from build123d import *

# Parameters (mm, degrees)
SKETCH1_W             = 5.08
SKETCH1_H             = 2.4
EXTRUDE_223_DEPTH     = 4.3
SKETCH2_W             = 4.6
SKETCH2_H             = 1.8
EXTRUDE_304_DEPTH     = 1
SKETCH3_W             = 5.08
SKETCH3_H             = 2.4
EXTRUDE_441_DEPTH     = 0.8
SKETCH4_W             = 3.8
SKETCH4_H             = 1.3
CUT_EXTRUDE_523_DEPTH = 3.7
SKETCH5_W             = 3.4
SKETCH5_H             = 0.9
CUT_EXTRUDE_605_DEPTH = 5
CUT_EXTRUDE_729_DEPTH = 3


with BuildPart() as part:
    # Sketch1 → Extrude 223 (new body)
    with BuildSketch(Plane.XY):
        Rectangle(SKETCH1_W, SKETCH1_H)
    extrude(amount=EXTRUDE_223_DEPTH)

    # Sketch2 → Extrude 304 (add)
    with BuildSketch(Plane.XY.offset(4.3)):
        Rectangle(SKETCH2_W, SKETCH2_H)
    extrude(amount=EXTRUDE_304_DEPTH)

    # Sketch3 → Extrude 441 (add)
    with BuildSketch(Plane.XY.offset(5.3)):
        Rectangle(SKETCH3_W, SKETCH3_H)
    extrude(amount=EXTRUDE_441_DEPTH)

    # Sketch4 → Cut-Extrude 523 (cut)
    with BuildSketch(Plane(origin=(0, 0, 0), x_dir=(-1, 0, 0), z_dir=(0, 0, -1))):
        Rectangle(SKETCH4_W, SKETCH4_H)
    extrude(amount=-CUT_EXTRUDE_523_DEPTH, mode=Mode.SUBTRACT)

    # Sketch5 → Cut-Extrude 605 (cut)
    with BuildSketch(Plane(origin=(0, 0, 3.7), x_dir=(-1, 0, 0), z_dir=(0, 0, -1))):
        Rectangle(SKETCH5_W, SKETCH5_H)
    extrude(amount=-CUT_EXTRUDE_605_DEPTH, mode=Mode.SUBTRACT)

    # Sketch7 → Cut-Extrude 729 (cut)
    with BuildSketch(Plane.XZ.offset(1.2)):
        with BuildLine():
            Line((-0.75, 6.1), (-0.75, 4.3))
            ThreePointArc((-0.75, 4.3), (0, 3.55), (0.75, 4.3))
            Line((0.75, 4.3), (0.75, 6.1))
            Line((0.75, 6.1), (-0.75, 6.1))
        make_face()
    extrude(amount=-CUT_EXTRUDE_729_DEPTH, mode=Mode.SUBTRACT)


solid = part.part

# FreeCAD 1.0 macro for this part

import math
import FreeCAD as App
import Part
import Sketcher
from FreeCAD import Vector
Q = App.Units.Quantity


def add_polygon(sketch, points):
    """Adds a closed chain of lines whose ends are joined by coincident constraints."""
    first, n = sketch.GeometryCount, len(points)
    for a, b in zip(points, points[1:] + points[:1]):
        sketch.addGeometry(Part.LineSegment(App.Vector(*a, 0), App.Vector(*b, 0)), False)
    for i in range(n):
        sketch.addConstraint(Sketcher.Constraint("Coincident", first + i, 2, first + (i + 1) % n, 1))

doc = App.newDocument("Part")
body = doc.addObject("PartDesign::Body", "Body")

# Sketch on XY plane
sketch1 = body.newObject("Sketcher::SketchObject", "Sketch")
sketch1.AttachmentSupport = (doc.getObject("XY_Plane"), [""])
sketch1.MapMode = "FlatFace"
add_polygon(sketch1, [(-2.5, 1.2), (-2.5, -1.2), (2.5, -1.2), (2.5, 1.2)])  # lines 0-3
sketch1.addConstraint(Sketcher.Constraint("Vertical", 0))
sketch1.addConstraint(Sketcher.Constraint("Horizontal", 1))
sketch1.addConstraint(Sketcher.Constraint("Vertical", 2))
sketch1.addConstraint(Sketcher.Constraint("Horizontal", 3))
sketch1.addConstraint(Sketcher.Constraint("Symmetric", 0, 2, 2, 2, -1, 1))
sketch1.addConstraint(Sketcher.Constraint("DistanceY", 0, 2, 0, 1, Q("2.4 mm")))
sketch1.addConstraint(Sketcher.Constraint("DistanceX", 1, 1, 1, 2, Q("5.08 mm")))
pad1 = body.newObject("PartDesign::Pad", "Pad")
pad1.Profile = sketch1
pad1.Length = 4.3

# Sketch on XY plane
sketch2 = body.newObject("Sketcher::SketchObject", "Sketch001")
sketch2.AttachmentSupport = (doc.getObject("XY_Plane"), [""])
sketch2.MapMode = "FlatFace"
sketch2.AttachmentOffset = App.Placement(Vector(0, 0, 4.3), App.Rotation())
add_polygon(sketch2, [(-2.3, 0.9), (-2.3, -0.9), (2.3, -0.9), (2.3, 0.9)])  # lines 0-3
sketch2.addConstraint(Sketcher.Constraint("Vertical", 0))
sketch2.addConstraint(Sketcher.Constraint("Horizontal", 1))
sketch2.addConstraint(Sketcher.Constraint("Vertical", 2))
sketch2.addConstraint(Sketcher.Constraint("Horizontal", 3))
sketch2.addConstraint(Sketcher.Constraint("Symmetric", 0, 2, 2, 2, -1, 1))
sketch2.addConstraint(Sketcher.Constraint("DistanceX", 1, 1, 1, 2, Q("4.6 mm")))
sketch2.addConstraint(Sketcher.Constraint("DistanceY", 0, 2, 0, 1, Q("1.8 mm")))
pad2 = body.newObject("PartDesign::Pad", "Pad001")
pad2.Profile = sketch2
pad2.Length = 1

# Sketch on XY plane
sketch3 = body.newObject("Sketcher::SketchObject", "Sketch002")
sketch3.AttachmentSupport = (doc.getObject("XY_Plane"), [""])
sketch3.MapMode = "FlatFace"
sketch3.AttachmentOffset = App.Placement(Vector(0, 0, 5.3), App.Rotation())
add_polygon(sketch3, [(-2.5, 1.2), (-2.5, -1.2), (2.5, -1.2), (2.5, 1.2)])  # lines 0-3
sketch3.addConstraint(Sketcher.Constraint("Vertical", 0))
sketch3.addConstraint(Sketcher.Constraint("Horizontal", 1))
sketch3.addConstraint(Sketcher.Constraint("Vertical", 2))
sketch3.addConstraint(Sketcher.Constraint("Horizontal", 3))
sketch3.addConstraint(Sketcher.Constraint("Symmetric", 0, 2, 2, 2, -1, 1))
sketch3.addConstraint(Sketcher.Constraint("DistanceY", 0, 2, 0, 1, Q("2.4 mm")))
sketch3.addConstraint(Sketcher.Constraint("DistanceX", 1, 1, 1, 2, Q("5.08 mm")))
pad3 = body.newObject("PartDesign::Pad", "Pad002")
pad3.Profile = sketch3
pad3.Length = 0.8

# Sketch on XY plane
sketch4 = body.newObject("Sketcher::SketchObject", "Sketch003")
sketch4.AttachmentSupport = (doc.getObject("XY_Plane"), [""])
sketch4.MapMode = "FlatFace"
add_polygon(sketch4, [(1.9, 0.7), (1.9, -0.7), (-1.9, -0.7), (-1.9, 0.7)])  # lines 0-3
sketch4.addConstraint(Sketcher.Constraint("Vertical", 0))
sketch4.addConstraint(Sketcher.Constraint("Horizontal", 1))
sketch4.addConstraint(Sketcher.Constraint("Vertical", 2))
sketch4.addConstraint(Sketcher.Constraint("Horizontal", 3))
sketch4.addConstraint(Sketcher.Constraint("Symmetric", 0, 2, 2, 2, -1, 1))
sketch4.addConstraint(Sketcher.Constraint("DistanceX", 1, 2, 1, 1, Q("3.8 mm")))
sketch4.addConstraint(Sketcher.Constraint("DistanceY", 0, 2, 0, 1, Q("1.3 mm")))
pocket1 = body.newObject("PartDesign::Pocket", "Pocket")
pocket1.Profile = sketch4
pocket1.Length = 3.7
pocket1.Reversed = True

# Sketch on XY plane
sketch5 = body.newObject("Sketcher::SketchObject", "Sketch004")
sketch5.AttachmentSupport = (doc.getObject("XY_Plane"), [""])
sketch5.MapMode = "FlatFace"
sketch5.AttachmentOffset = App.Placement(Vector(0, 0, 3.7), App.Rotation())
add_polygon(sketch5, [(1.7, 0.5), (1.7, -0.5), (-1.7, -0.5), (-1.7, 0.5)])  # lines 0-3
sketch5.addConstraint(Sketcher.Constraint("Vertical", 0))
sketch5.addConstraint(Sketcher.Constraint("Horizontal", 1))
sketch5.addConstraint(Sketcher.Constraint("Vertical", 2))
sketch5.addConstraint(Sketcher.Constraint("Horizontal", 3))
sketch5.addConstraint(Sketcher.Constraint("Symmetric", 0, 2, 2, 2, -1, 1))
sketch5.addConstraint(Sketcher.Constraint("DistanceX", 1, 2, 1, 1, Q("3.4 mm")))
sketch5.addConstraint(Sketcher.Constraint("DistanceY", 0, 2, 0, 1, Q("0.9 mm")))
pocket2 = body.newObject("PartDesign::Pocket", "Pocket001")
pocket2.Profile = sketch5
pocket2.Length = 5
pocket2.Reversed = True

# Sketch on XZ plane
sketch6 = body.newObject("Sketcher::SketchObject", "Sketch005")
sketch6.AttachmentSupport = (doc.getObject("XZ_Plane"), [""])
sketch6.MapMode = "FlatFace"
sketch6.AttachmentOffset = App.Placement(Vector(0, 0, 1.2), App.Rotation())
sketch6.addGeometry(Part.LineSegment(Vector(-0.8, 6.1, 0), Vector(-0.8, 4.3, 0)), False)
sketch6.addGeometry(Part.ArcOfCircle(Part.Circle(Vector(0, 4.3, 0), Vector(0, 0, 1), 0.8), math.radians(180), math.radians(360)), False)
sketch6.addGeometry(Part.LineSegment(Vector(0.8, 4.3, 0), Vector(0.8, 6.1, 0)), False)
sketch6.addGeometry(Part.LineSegment(Vector(0.8, 6.1, 0), Vector(-0.8, 6.1, 0)), False)
sketch6.addConstraint(Sketcher.Constraint("Tangent", 0, 2, 1, 1))
sketch6.addConstraint(Sketcher.Constraint("Tangent", 1, 2, 2, 1))
sketch6.addConstraint(Sketcher.Constraint("Coincident", 2, 2, 3, 1))
sketch6.addConstraint(Sketcher.Constraint("Coincident", 3, 2, 0, 1))
sketch6.addConstraint(Sketcher.Constraint("Vertical", 0))
sketch6.addConstraint(Sketcher.Constraint("Vertical", 2))
sketch6.addConstraint(Sketcher.Constraint("Horizontal", 3))
sketch6.addConstraint(Sketcher.Constraint("PointOnObject", 1, 3, -2))
sketch6.addConstraint(Sketcher.Constraint("Radius", 1, Q("0.75 mm")))
sketch6.addConstraint(Sketcher.Constraint("DistanceY", 0, 2, 0, 1, Q("1.8 mm")))
sketch6.addConstraint(Sketcher.Constraint("DistanceY", -1, 1, 1, 3, Q("4.3 mm")))
pocket3 = body.newObject("PartDesign::Pocket", "Pocket002")
pocket3.Profile = sketch6
pocket3.Length = 3

doc.recompute()
